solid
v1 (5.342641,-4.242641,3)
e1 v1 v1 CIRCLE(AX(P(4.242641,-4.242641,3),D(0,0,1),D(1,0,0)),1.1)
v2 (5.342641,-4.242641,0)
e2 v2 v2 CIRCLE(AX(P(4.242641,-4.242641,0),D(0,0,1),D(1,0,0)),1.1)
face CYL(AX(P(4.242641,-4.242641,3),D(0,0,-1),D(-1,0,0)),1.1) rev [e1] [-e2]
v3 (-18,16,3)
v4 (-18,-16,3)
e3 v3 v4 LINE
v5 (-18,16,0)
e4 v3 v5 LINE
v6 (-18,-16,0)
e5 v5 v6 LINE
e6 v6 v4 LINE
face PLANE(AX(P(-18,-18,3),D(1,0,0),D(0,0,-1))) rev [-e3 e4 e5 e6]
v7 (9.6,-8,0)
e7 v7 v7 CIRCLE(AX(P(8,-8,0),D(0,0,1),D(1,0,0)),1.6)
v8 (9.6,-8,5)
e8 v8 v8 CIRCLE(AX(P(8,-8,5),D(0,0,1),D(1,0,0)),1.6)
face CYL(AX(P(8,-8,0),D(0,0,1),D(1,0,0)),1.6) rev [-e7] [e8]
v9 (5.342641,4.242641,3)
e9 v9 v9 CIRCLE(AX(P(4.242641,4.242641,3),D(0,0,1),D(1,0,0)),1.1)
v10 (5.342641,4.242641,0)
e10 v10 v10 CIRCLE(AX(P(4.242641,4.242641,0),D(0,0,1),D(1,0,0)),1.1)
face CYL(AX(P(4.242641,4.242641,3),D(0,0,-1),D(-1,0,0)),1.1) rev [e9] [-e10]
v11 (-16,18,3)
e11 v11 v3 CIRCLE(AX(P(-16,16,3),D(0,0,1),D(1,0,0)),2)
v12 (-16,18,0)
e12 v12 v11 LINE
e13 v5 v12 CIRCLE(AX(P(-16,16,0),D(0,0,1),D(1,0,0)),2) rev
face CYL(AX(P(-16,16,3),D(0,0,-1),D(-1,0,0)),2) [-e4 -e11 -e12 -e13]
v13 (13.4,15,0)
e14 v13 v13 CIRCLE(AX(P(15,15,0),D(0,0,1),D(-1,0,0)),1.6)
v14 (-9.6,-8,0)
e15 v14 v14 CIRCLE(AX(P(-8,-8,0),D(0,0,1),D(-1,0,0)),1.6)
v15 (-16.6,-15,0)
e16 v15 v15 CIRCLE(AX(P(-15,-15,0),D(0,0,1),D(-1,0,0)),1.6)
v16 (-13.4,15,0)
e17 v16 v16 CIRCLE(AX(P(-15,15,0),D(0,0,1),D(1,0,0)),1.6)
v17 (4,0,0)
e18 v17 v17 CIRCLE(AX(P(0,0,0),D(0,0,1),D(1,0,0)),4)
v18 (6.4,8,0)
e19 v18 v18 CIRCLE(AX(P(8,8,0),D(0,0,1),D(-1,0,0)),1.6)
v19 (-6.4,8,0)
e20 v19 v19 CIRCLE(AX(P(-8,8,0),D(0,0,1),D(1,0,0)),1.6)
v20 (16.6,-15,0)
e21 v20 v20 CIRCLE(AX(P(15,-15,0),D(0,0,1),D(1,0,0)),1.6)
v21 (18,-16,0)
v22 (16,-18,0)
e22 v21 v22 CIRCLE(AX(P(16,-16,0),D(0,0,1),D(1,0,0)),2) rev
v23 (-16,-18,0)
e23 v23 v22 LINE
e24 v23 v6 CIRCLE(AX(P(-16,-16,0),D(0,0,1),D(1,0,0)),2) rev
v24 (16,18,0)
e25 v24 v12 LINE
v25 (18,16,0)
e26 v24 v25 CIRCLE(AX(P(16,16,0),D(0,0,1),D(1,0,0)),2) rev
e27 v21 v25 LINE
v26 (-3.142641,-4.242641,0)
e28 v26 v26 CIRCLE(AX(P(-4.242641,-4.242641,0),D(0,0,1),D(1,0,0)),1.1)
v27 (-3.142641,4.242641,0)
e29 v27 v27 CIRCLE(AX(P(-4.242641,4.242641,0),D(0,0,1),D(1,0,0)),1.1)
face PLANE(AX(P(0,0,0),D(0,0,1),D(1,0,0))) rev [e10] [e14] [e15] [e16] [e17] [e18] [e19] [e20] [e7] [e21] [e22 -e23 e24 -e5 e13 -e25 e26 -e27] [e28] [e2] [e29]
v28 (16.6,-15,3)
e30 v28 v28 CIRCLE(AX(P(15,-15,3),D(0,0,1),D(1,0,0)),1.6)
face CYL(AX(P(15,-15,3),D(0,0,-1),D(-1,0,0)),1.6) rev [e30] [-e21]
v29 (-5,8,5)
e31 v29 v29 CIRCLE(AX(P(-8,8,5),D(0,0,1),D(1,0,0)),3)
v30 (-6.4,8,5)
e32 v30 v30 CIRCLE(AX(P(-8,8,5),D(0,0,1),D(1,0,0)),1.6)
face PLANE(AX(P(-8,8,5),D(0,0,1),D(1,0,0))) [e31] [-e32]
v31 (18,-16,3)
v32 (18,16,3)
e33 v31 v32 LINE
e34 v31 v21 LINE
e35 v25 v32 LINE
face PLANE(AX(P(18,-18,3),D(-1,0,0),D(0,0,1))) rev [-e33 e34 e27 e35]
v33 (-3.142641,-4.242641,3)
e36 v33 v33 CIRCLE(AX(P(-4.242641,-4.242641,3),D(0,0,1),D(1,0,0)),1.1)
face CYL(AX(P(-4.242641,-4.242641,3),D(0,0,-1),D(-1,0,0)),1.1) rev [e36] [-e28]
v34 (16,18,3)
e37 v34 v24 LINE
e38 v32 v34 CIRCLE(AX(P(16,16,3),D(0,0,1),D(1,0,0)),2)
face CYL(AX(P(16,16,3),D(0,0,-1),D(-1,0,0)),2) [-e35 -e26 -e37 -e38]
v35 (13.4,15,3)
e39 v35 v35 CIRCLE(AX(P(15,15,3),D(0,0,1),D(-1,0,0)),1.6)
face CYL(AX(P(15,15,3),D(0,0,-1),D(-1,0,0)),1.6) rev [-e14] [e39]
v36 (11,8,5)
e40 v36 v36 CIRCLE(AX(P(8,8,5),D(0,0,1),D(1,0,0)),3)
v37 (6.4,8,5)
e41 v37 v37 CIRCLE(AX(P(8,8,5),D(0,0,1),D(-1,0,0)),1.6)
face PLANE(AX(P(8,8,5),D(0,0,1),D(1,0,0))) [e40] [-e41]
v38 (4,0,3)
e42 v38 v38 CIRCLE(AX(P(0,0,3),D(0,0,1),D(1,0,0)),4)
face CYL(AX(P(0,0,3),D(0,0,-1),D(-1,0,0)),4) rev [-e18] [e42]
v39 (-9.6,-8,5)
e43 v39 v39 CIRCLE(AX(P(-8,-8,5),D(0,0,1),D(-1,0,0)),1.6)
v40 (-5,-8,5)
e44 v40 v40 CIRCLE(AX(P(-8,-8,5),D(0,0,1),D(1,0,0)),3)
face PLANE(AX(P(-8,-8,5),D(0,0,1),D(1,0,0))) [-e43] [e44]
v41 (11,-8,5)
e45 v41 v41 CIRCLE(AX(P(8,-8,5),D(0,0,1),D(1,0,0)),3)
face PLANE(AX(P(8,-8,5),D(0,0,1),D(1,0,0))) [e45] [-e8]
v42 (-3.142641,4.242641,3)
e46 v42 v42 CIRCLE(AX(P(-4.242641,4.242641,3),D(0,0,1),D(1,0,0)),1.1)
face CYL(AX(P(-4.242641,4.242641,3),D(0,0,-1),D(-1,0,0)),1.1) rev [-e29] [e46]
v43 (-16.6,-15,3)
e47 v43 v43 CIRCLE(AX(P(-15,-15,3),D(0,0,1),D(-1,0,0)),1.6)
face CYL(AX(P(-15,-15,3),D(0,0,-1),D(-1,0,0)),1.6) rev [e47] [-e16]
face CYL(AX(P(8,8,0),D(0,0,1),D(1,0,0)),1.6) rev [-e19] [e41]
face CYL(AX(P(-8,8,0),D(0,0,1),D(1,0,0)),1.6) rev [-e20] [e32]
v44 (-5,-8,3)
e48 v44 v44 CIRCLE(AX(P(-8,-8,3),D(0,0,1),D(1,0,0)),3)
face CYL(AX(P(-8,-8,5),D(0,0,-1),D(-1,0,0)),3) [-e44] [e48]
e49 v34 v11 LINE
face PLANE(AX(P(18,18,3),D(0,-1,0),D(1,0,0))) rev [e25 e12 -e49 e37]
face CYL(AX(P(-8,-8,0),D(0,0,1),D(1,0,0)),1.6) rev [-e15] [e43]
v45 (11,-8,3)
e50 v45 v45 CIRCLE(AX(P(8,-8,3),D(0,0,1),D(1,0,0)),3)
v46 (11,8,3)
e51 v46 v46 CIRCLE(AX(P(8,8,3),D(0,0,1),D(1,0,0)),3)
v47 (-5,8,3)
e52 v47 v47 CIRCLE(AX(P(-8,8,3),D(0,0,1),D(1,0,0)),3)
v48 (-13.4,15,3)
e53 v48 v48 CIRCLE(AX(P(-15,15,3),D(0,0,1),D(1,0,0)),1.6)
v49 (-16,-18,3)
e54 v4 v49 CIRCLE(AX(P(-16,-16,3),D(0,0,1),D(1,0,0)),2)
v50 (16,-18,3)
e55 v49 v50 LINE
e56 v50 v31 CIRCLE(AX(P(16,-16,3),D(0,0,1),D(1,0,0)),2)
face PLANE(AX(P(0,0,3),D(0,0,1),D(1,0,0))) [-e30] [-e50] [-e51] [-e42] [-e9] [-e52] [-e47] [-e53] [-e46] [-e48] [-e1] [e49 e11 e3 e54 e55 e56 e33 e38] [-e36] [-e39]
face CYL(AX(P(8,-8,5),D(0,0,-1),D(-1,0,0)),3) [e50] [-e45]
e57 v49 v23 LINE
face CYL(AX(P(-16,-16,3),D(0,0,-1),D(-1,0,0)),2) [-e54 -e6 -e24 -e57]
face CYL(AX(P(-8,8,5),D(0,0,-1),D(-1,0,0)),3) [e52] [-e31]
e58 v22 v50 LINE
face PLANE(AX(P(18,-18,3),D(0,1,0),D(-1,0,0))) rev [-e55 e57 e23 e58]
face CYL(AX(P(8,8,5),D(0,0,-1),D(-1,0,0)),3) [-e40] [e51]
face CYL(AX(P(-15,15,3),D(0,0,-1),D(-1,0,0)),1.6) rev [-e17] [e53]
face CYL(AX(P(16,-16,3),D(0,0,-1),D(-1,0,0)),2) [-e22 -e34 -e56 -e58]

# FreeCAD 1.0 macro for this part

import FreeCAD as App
import Part
import Sketcher
from FreeCAD import Vector
Q = App.Units.Quantity


def edges_at(feature, points):
    """Names of the edges that pass closest to the given points."""
    edges = feature.Shape.Edges
    near = lambda p: min(range(len(edges)), key=lambda i: edges[i].distToShape(Part.Vertex(*p))[0])
    return sorted({f"Edge{near(p) + 1}" for p in points})


def add_polygon(sketch, points):
    """Adds a closed chain of lines whose ends are joined by coincident constraints."""
    first, n = sketch.GeometryCount, len(points)
    for a, b in zip(points, points[1:] + points[:1]):
        sketch.addGeometry(Part.LineSegment(App.Vector(*a, 0), App.Vector(*b, 0)), False)
    for i in range(n):
        sketch.addConstraint(Sketcher.Constraint("Coincident", first + i, 2, first + (i + 1) % n, 1))

doc = App.newDocument("Part")
body = doc.addObject("PartDesign::Body", "Body")

# Sketch on XY plane
sketch1 = body.newObject("Sketcher::SketchObject", "Sketch")
sketch1.AttachmentSupport = (doc.getObject("XY_Plane"), [""])
sketch1.MapMode = "FlatFace"
add_polygon(sketch1, [(-18, 18), (-18, -18), (18, -18), (18, 18)])  # lines 0-3
sketch1.addGeometry(Part.Circle(Vector(-15, -15, 0), Vector(0, 0, 1), 1.6), False)  # 4
sketch1.addGeometry(Part.Circle(Vector(-4.2, -4.2, 0), Vector(0, 0, 1), 1.1), False)  # 5
sketch1.addGeometry(Part.Circle(Vector(15, -15, 0), Vector(0, 0, 1), 1.6), False)  # 6
sketch1.addGeometry(Part.Circle(Vector(4.2, -4.2, 0), Vector(0, 0, 1), 1.1), False)  # 7
sketch1.addGeometry(Part.Circle(Vector(-4.2, 4.2, 0), Vector(0, 0, 1), 1.1), False)  # 8
sketch1.addGeometry(Part.Circle(Vector(-15, 15, 0), Vector(0, 0, 1), 1.6), False)  # 9
sketch1.addGeometry(Part.Circle(Vector(0, 0, 0), Vector(0, 0, 1), 4), False)  # 10
sketch1.addGeometry(Part.Circle(Vector(4.2, 4.2, 0), Vector(0, 0, 1), 1.1), False)  # 11
sketch1.addGeometry(Part.Circle(Vector(15, 15, 0), Vector(0, 0, 1), 1.6), False)  # 12
sketch1.addConstraint([
    Sketcher.Constraint("Vertical", 0),
    Sketcher.Constraint("Horizontal", 1),
    Sketcher.Constraint("Vertical", 2),
    Sketcher.Constraint("Horizontal", 3),
    Sketcher.Constraint("Coincident", 10, 3, -1, 1),
    Sketcher.Constraint("Equal", 4, 6),
    Sketcher.Constraint("Equal", 5, 7),
    Sketcher.Constraint("Equal", 7, 8),
    Sketcher.Constraint("Equal", 6, 9),
    Sketcher.Constraint("Equal", 8, 11),
    Sketcher.Constraint("Equal", 9, 12),
    Sketcher.Constraint("Symmetric", 7, 3, 8, 3, -1, 1),
    Sketcher.Constraint("Symmetric", 6, 3, 9, 3, -1, 1),
    Sketcher.Constraint("Symmetric", 5, 3, 11, 3, -1, 1),
    Sketcher.Constraint("Symmetric", 4, 3, 12, 3, -1, 1),
    Sketcher.Constraint("Symmetric", 0, 2, 2, 2, -1, 1),
    Sketcher.Constraint("Symmetric", 4, 3, 6, 3, -2),
    Sketcher.Constraint("Symmetric", 5, 3, 7, 3, -2),
    Sketcher.Constraint("Equal", 3, 0),
    Sketcher.Constraint("Diameter", 10, Q("8 mm")),
    Sketcher.Constraint("Diameter", 4, Q("3.2 mm")),
    Sketcher.Constraint("Diameter", 5, Q("2.2 mm")),
    Sketcher.Constraint("DistanceX", 1, 1, 1, 2, Q("36 mm")),
    Sketcher.Constraint("DistanceX", 4, 3, -1, 1, Q("15 mm")),
    Sketcher.Constraint("DistanceY", 4, 3, -1, 1, Q("15 mm")),
    Sketcher.Constraint("DistanceX", 5, 3, -1, 1, Q("4.242641 mm")),
    Sketcher.Constraint("DistanceY", 5, 3, -1, 1, Q("4.242641 mm")),
])
pad1 = body.newObject("PartDesign::Pad", "Pad")
pad1.Profile = sketch1
pad1.Length = 3

# Sketch on XY plane
sketch2 = body.newObject("Sketcher::SketchObject", "Sketch001")
sketch2.AttachmentSupport = (doc.getObject("XY_Plane"), [""])
sketch2.MapMode = "FlatFace"
sketch2.AttachmentOffset = App.Placement(Vector(0, 0, 3), App.Rotation())
sketch2.addGeometry([
    Part.Circle(Vector(-8, 8, 0), Vector(0, 0, 1), 3),
    Part.Circle(Vector(8, 8, 0), Vector(0, 0, 1), 3),
    Part.Circle(Vector(8, -8, 0), Vector(0, 0, 1), 3),
    Part.Circle(Vector(-8, -8, 0), Vector(0, 0, 1), 3),
], False)
sketch2.addConstraint([
    Sketcher.Constraint("Equal", 0, 1),
    Sketcher.Constraint("Equal", 1, 2),
    Sketcher.Constraint("Equal", 2, 3),
    Sketcher.Constraint("Symmetric", 0, 3, 2, 3, -1, 1),
    Sketcher.Constraint("Symmetric", 1, 3, 3, 3, -1, 1),
    Sketcher.Constraint("Symmetric", 0, 3, 1, 3, -2),
    Sketcher.Constraint("Diameter", 0, Q("6 mm")),
    Sketcher.Constraint("DistanceX", 0, 3, -1, 1, Q("8 mm")),
    Sketcher.Constraint("DistanceY", -1, 1, 0, 3, Q("8 mm")),
])
pad2 = body.newObject("PartDesign::Pad", "Pad001")
pad2.Profile = sketch2
pad2.Length = 2

# Sketch on XY plane
sketch3 = body.newObject("Sketcher::SketchObject", "Sketch002")
sketch3.AttachmentSupport = (doc.getObject("XY_Plane"), [""])
sketch3.MapMode = "FlatFace"
sketch3.AttachmentOffset = App.Placement(Vector(0, 0, 5), App.Rotation())
sketch3.addGeometry([
    Part.Circle(Vector(-8, 8, 0), Vector(0, 0, 1), 1.6),
    Part.Circle(Vector(8, 8, 0), Vector(0, 0, 1), 1.6),
    Part.Circle(Vector(8, -8, 0), Vector(0, 0, 1), 1.6),
    Part.Circle(Vector(-8, -8, 0), Vector(0, 0, 1), 1.6),
], False)
sketch3.addConstraint([
    Sketcher.Constraint("Equal", 0, 1),
    Sketcher.Constraint("Equal", 1, 2),
    Sketcher.Constraint("Equal", 2, 3),
    Sketcher.Constraint("Symmetric", 0, 3, 2, 3, -1, 1),
    Sketcher.Constraint("Symmetric", 1, 3, 3, 3, -1, 1),
    Sketcher.Constraint("Symmetric", 0, 3, 1, 3, -2),
    Sketcher.Constraint("Diameter", 0, Q("3.2 mm")),
    Sketcher.Constraint("DistanceX", 0, 3, -1, 1, Q("8 mm")),
    Sketcher.Constraint("DistanceY", -1, 1, 0, 3, Q("8 mm")),
])
pocket1 = body.newObject("PartDesign::Pocket", "Pocket")
pocket1.Profile = sketch3
pocket1.Type = "ThroughAll"
doc.recompute()

fillet = body.newObject("PartDesign::Fillet", "Fillet")
fillet.Base = (pocket1, edges_at(pocket1, [
    (-18, 18, 1.5),
    (18, 18, 1.5),
    (18, -18, 1.5),
    (-18, -18, 1.5),
]))
fillet.Radius = 2

doc.recompute()
